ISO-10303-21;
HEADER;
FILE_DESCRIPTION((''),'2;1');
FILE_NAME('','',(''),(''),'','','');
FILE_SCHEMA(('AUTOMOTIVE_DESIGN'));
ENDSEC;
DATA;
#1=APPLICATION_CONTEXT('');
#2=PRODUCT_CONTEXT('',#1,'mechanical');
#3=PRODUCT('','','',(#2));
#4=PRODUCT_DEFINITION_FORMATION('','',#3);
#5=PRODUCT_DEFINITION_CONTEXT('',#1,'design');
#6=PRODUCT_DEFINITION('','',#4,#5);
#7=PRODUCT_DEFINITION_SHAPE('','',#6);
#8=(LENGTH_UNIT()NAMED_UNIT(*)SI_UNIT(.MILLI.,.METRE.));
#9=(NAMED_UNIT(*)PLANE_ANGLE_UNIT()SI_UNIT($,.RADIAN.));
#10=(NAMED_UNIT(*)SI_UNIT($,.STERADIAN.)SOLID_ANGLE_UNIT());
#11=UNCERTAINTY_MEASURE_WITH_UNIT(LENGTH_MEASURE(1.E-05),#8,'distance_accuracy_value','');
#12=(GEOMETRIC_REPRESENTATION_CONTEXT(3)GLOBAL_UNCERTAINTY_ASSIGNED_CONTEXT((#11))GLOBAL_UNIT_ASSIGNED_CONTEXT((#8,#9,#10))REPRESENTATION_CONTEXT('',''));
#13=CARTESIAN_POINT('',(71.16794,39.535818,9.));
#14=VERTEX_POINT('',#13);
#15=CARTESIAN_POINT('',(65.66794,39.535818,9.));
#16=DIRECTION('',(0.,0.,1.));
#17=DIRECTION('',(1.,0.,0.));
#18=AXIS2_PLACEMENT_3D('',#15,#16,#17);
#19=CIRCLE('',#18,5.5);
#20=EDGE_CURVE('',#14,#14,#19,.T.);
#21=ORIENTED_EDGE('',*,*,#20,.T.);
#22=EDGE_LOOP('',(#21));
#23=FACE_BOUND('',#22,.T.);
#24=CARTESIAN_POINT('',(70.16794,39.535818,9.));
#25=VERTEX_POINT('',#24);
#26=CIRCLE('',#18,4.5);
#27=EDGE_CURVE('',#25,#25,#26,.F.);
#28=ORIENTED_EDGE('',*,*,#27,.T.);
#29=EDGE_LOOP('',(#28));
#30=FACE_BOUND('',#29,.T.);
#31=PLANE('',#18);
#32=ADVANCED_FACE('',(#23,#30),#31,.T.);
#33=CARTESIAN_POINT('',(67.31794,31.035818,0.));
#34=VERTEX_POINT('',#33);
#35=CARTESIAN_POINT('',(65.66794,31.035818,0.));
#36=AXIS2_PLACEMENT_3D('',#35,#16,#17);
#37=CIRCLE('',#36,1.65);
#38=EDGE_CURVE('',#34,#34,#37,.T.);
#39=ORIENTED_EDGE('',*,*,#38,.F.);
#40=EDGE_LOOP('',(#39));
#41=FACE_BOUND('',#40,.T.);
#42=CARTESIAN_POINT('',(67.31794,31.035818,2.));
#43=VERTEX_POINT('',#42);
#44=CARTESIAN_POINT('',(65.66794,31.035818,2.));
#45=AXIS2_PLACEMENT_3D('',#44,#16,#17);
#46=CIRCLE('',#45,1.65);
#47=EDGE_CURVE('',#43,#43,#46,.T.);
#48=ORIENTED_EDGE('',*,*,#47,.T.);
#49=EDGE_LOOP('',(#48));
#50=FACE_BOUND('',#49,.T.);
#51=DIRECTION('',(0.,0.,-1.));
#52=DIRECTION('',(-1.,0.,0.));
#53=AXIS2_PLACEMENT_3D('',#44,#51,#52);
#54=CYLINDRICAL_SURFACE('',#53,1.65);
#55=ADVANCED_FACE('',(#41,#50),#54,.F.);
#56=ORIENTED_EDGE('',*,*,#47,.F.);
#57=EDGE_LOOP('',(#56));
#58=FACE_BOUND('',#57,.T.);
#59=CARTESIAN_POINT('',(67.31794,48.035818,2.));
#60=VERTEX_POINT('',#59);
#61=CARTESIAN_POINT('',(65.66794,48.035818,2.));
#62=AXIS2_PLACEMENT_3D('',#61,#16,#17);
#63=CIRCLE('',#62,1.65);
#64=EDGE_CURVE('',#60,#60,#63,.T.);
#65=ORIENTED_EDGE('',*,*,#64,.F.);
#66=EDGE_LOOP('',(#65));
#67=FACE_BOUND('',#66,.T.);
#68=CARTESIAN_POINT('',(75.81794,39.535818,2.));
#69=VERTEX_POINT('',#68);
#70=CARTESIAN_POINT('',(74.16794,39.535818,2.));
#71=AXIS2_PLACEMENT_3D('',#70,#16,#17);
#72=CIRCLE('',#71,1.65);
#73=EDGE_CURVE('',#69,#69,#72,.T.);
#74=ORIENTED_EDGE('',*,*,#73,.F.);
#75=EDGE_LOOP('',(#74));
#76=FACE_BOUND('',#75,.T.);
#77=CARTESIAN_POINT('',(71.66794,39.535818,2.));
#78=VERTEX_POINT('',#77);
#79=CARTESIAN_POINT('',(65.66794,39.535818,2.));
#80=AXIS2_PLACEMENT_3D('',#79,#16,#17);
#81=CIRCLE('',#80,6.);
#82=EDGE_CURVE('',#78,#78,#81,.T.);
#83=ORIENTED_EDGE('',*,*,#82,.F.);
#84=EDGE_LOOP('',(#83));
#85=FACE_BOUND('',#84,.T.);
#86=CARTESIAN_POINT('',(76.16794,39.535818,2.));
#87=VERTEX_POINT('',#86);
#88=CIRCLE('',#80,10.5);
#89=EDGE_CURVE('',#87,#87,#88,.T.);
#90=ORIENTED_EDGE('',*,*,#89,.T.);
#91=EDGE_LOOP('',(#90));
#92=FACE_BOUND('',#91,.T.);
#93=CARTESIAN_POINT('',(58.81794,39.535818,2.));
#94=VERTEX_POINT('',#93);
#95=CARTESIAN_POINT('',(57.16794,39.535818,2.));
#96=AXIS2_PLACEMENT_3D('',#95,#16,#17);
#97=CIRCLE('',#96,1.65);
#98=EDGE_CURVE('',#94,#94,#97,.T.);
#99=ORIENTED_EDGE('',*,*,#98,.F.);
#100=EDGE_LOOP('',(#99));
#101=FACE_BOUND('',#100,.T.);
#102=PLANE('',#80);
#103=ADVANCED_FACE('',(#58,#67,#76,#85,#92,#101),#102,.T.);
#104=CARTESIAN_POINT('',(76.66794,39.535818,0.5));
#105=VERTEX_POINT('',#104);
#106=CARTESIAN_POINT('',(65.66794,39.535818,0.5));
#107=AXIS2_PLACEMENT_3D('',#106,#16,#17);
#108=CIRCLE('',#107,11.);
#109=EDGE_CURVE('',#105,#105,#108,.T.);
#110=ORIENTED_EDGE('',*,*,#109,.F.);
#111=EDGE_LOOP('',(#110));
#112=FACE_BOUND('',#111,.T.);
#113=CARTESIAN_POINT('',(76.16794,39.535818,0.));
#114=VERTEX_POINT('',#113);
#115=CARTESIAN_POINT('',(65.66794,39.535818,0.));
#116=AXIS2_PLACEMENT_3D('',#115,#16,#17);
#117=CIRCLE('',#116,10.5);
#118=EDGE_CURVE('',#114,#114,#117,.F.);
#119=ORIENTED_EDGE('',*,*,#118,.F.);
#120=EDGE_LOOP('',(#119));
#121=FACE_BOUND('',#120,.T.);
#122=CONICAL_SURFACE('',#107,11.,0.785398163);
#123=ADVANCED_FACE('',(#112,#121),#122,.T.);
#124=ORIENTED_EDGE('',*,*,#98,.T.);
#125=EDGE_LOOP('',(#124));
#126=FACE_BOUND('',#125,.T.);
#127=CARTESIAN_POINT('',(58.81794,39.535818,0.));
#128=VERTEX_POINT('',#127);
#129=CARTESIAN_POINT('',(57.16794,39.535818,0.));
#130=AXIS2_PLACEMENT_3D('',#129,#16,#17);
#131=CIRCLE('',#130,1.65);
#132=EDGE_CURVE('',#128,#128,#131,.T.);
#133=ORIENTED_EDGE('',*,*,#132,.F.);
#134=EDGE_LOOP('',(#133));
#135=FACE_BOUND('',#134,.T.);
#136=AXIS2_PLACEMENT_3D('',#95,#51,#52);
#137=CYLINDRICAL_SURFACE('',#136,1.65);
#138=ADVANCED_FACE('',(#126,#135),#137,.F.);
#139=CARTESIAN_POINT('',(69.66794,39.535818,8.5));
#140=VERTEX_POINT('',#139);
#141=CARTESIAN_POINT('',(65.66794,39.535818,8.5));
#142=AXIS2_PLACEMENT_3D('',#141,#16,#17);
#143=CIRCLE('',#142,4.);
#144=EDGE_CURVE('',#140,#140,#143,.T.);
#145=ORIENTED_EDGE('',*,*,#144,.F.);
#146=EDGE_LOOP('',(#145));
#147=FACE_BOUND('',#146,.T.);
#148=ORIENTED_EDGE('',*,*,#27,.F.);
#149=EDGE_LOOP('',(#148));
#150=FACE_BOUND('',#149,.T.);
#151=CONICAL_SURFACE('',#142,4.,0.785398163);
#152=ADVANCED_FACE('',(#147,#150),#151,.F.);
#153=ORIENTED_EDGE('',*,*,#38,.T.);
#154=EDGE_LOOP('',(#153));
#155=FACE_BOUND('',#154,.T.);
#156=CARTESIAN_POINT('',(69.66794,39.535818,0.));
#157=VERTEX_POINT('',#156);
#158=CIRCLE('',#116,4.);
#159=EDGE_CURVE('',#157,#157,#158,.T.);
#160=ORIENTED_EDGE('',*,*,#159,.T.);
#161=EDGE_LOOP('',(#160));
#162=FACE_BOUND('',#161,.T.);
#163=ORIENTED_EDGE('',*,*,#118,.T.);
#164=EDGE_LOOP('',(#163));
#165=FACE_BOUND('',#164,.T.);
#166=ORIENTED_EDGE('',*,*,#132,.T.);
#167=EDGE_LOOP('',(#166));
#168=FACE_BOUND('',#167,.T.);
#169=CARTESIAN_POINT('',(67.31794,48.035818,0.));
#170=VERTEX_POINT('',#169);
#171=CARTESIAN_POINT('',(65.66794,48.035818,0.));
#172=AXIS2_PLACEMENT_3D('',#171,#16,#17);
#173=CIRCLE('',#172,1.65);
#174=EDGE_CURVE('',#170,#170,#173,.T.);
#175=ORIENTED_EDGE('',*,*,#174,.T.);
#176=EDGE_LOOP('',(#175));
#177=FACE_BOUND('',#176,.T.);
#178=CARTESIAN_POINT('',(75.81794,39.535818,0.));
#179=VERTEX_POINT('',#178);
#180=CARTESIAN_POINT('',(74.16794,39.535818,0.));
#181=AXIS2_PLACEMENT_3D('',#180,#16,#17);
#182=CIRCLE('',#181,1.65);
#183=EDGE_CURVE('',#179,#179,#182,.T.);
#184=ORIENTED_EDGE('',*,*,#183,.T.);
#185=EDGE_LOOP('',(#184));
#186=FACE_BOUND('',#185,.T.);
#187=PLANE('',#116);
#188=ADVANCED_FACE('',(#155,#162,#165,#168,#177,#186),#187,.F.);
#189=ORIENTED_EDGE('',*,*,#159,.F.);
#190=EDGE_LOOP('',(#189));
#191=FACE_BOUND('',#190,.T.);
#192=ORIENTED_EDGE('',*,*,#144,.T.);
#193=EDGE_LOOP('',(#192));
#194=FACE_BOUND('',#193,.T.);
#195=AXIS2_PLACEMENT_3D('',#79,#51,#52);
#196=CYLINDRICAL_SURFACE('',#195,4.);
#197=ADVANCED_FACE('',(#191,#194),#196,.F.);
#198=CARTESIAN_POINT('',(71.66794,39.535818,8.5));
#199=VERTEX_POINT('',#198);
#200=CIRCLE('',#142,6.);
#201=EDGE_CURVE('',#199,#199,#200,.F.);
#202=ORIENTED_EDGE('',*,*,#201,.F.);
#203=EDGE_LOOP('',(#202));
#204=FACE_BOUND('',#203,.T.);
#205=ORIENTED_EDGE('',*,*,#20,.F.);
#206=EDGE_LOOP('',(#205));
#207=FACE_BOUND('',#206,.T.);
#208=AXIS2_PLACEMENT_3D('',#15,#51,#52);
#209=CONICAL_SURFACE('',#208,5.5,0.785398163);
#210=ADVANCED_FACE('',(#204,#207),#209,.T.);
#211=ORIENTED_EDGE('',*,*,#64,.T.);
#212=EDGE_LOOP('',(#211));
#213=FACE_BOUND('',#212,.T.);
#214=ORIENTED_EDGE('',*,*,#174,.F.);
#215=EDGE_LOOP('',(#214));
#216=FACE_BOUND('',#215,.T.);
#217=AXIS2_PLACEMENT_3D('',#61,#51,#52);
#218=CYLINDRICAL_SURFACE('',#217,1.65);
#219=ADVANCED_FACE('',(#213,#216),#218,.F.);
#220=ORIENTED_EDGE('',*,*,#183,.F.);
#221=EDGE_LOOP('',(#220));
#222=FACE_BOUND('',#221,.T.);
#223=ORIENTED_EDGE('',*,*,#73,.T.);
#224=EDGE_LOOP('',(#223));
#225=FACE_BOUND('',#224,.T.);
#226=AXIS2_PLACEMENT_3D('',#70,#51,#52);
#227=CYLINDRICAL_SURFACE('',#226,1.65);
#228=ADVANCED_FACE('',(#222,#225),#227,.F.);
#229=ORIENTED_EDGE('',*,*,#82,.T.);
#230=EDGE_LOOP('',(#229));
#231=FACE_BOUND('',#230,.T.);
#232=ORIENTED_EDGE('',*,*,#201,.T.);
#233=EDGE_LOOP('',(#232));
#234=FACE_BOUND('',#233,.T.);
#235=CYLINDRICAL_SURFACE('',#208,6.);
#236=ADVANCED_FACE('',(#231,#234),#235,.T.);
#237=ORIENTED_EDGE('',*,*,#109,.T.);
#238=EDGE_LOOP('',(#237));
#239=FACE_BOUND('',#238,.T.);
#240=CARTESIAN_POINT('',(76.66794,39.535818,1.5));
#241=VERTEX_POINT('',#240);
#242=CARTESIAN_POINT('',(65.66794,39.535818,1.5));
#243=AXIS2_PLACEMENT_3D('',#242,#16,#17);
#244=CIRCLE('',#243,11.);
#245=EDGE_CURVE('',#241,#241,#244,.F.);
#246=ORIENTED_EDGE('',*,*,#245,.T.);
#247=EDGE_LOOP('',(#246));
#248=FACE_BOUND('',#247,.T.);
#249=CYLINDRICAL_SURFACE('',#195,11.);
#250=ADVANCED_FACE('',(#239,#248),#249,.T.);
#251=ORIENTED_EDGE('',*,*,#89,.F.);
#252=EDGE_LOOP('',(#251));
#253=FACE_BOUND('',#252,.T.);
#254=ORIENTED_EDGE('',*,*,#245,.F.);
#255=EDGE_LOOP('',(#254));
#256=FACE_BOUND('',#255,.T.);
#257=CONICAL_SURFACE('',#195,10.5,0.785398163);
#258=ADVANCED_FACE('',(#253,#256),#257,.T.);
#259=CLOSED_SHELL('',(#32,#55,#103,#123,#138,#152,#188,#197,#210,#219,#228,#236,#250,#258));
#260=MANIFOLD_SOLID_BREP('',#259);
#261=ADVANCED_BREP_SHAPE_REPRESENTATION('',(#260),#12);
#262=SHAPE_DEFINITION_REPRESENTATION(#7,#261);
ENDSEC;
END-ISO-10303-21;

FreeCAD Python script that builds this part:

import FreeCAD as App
import Part
import Sketcher
Q = App.Units.Quantity


def edges_at(feature, points):
    """Names of the edges that pass closest to the given points."""
    edges = feature.Shape.Edges
    near = lambda p: min(range(len(edges)), key=lambda i: edges[i].distToShape(Part.Vertex(*p))[0])
    return sorted({f"Edge{near(p) + 1}" for p in points})

doc = App.newDocument("Part")
body = doc.addObject("PartDesign::Body", "Body")

sketch1 = body.newObject("Sketcher::SketchObject", "Sketch")
sketch1.AttachmentSupport = (doc.getObject("XY_Plane"), [""])
sketch1.MapMode = "FlatFace"
sketch1.addGeometry(Part.Circle(App.Vector(65.7, 39.5, 0), App.Vector(0, 0, 1), 11), False)
sketch1.addGeometry(Part.Circle(App.Vector(65.7, 31, 0), App.Vector(0, 0, 1), 1.6), False)
sketch1.addGeometry(Part.Circle(App.Vector(57.2, 39.5, 0), App.Vector(0, 0, 1), 1.6), False)
sketch1.addGeometry(Part.Circle(App.Vector(65.7, 39.5, 0), App.Vector(0, 0, 1), 4), False)
sketch1.addGeometry(Part.Circle(App.Vector(65.7, 48, 0), App.Vector(0, 0, 1), 1.6), False)
sketch1.addGeometry(Part.Circle(App.Vector(74.2, 39.5, 0), App.Vector(0, 0, 1), 1.6), False)
sketch1.addConstraint(Sketcher.Constraint("Coincident", 3, 3, 0, 3))
sketch1.addConstraint(Sketcher.Constraint("Equal", 1, 2))
sketch1.addConstraint(Sketcher.Constraint("Equal", 2, 4))
sketch1.addConstraint(Sketcher.Constraint("Equal", 4, 5))
sketch1.addConstraint(Sketcher.Constraint("Horizontal", 0, 3, 2, 3))
sketch1.addConstraint(Sketcher.Constraint("Horizontal", 3, 3, 5, 3))
sketch1.addConstraint(Sketcher.Constraint("Vertical", 0, 3, 1, 3))
sketch1.addConstraint(Sketcher.Constraint("Vertical", 3, 3, 4, 3))
sketch1.addConstraint(Sketcher.Constraint("Diameter", 0, Q("22 mm")))
sketch1.addConstraint(Sketcher.Constraint("Diameter", 3, Q("8 mm")))
sketch1.addConstraint(Sketcher.Constraint("Diameter", 1, Q("3.3 mm")))
sketch1.addConstraint(Sketcher.Constraint("DistanceY", 1, 3, 4, 3, Q("17 mm")))
sketch1.addConstraint(Sketcher.Constraint("DistanceX", 2, 3, 5, 3, Q("17 mm")))
sketch1.addConstraint(Sketcher.Constraint("DistanceY", 1, 3, 0, 3, Q("8.5 mm")))
sketch1.addConstraint(Sketcher.Constraint("DistanceX", 2, 3, 0, 3, Q("8.5 mm")))
sketch1.addConstraint(Sketcher.Constraint("DistanceX", -1, 1, 0, 3, Q("65.66794 mm")))
sketch1.addConstraint(Sketcher.Constraint("DistanceY", -1, 1, 0, 3, Q("39.535818 mm")))
pad1 = body.newObject("PartDesign::Pad", "Pad")
pad1.Profile = sketch1
pad1.Length = 2

sketch2 = body.newObject("Sketcher::SketchObject", "Sketch001")
sketch2.AttachmentSupport = (doc.getObject("XY_Plane"), [""])
sketch2.MapMode = "FlatFace"
sketch2.AttachmentOffset = App.Placement(App.Vector(0, 0, 2), App.Rotation())
sketch2.addGeometry(Part.Circle(App.Vector(65.7, 39.5, 0), App.Vector(0, 0, 1), 6), False)
sketch2.addGeometry(Part.Circle(App.Vector(65.7, 39.5, 0), App.Vector(0, 0, 1), 4), False)
sketch2.addConstraint(Sketcher.Constraint("Coincident", 1, 3, 0, 3))
sketch2.addConstraint(Sketcher.Constraint("Diameter", 0, Q("12 mm")))
sketch2.addConstraint(Sketcher.Constraint("Diameter", 1, Q("8 mm")))
sketch2.addConstraint(Sketcher.Constraint("DistanceX", -1, 1, 0, 3, Q("65.66794 mm")))
sketch2.addConstraint(Sketcher.Constraint("DistanceY", -1, 1, 0, 3, Q("39.535818 mm")))
pad2 = body.newObject("PartDesign::Pad", "Pad001")
pad2.Profile = sketch2
pad2.Length = 7
doc.recompute()

chamfer = body.newObject("PartDesign::Chamfer", "Chamfer")
chamfer.Base = (pad2, edges_at(pad2, [
    (54.668, 39.536, 0),
    (59.668, 39.536, 9),
    (61.668, 39.536, 9),
    (54.668, 39.536, 2),
]))
chamfer.Size = 0.5

doc.recompute()
